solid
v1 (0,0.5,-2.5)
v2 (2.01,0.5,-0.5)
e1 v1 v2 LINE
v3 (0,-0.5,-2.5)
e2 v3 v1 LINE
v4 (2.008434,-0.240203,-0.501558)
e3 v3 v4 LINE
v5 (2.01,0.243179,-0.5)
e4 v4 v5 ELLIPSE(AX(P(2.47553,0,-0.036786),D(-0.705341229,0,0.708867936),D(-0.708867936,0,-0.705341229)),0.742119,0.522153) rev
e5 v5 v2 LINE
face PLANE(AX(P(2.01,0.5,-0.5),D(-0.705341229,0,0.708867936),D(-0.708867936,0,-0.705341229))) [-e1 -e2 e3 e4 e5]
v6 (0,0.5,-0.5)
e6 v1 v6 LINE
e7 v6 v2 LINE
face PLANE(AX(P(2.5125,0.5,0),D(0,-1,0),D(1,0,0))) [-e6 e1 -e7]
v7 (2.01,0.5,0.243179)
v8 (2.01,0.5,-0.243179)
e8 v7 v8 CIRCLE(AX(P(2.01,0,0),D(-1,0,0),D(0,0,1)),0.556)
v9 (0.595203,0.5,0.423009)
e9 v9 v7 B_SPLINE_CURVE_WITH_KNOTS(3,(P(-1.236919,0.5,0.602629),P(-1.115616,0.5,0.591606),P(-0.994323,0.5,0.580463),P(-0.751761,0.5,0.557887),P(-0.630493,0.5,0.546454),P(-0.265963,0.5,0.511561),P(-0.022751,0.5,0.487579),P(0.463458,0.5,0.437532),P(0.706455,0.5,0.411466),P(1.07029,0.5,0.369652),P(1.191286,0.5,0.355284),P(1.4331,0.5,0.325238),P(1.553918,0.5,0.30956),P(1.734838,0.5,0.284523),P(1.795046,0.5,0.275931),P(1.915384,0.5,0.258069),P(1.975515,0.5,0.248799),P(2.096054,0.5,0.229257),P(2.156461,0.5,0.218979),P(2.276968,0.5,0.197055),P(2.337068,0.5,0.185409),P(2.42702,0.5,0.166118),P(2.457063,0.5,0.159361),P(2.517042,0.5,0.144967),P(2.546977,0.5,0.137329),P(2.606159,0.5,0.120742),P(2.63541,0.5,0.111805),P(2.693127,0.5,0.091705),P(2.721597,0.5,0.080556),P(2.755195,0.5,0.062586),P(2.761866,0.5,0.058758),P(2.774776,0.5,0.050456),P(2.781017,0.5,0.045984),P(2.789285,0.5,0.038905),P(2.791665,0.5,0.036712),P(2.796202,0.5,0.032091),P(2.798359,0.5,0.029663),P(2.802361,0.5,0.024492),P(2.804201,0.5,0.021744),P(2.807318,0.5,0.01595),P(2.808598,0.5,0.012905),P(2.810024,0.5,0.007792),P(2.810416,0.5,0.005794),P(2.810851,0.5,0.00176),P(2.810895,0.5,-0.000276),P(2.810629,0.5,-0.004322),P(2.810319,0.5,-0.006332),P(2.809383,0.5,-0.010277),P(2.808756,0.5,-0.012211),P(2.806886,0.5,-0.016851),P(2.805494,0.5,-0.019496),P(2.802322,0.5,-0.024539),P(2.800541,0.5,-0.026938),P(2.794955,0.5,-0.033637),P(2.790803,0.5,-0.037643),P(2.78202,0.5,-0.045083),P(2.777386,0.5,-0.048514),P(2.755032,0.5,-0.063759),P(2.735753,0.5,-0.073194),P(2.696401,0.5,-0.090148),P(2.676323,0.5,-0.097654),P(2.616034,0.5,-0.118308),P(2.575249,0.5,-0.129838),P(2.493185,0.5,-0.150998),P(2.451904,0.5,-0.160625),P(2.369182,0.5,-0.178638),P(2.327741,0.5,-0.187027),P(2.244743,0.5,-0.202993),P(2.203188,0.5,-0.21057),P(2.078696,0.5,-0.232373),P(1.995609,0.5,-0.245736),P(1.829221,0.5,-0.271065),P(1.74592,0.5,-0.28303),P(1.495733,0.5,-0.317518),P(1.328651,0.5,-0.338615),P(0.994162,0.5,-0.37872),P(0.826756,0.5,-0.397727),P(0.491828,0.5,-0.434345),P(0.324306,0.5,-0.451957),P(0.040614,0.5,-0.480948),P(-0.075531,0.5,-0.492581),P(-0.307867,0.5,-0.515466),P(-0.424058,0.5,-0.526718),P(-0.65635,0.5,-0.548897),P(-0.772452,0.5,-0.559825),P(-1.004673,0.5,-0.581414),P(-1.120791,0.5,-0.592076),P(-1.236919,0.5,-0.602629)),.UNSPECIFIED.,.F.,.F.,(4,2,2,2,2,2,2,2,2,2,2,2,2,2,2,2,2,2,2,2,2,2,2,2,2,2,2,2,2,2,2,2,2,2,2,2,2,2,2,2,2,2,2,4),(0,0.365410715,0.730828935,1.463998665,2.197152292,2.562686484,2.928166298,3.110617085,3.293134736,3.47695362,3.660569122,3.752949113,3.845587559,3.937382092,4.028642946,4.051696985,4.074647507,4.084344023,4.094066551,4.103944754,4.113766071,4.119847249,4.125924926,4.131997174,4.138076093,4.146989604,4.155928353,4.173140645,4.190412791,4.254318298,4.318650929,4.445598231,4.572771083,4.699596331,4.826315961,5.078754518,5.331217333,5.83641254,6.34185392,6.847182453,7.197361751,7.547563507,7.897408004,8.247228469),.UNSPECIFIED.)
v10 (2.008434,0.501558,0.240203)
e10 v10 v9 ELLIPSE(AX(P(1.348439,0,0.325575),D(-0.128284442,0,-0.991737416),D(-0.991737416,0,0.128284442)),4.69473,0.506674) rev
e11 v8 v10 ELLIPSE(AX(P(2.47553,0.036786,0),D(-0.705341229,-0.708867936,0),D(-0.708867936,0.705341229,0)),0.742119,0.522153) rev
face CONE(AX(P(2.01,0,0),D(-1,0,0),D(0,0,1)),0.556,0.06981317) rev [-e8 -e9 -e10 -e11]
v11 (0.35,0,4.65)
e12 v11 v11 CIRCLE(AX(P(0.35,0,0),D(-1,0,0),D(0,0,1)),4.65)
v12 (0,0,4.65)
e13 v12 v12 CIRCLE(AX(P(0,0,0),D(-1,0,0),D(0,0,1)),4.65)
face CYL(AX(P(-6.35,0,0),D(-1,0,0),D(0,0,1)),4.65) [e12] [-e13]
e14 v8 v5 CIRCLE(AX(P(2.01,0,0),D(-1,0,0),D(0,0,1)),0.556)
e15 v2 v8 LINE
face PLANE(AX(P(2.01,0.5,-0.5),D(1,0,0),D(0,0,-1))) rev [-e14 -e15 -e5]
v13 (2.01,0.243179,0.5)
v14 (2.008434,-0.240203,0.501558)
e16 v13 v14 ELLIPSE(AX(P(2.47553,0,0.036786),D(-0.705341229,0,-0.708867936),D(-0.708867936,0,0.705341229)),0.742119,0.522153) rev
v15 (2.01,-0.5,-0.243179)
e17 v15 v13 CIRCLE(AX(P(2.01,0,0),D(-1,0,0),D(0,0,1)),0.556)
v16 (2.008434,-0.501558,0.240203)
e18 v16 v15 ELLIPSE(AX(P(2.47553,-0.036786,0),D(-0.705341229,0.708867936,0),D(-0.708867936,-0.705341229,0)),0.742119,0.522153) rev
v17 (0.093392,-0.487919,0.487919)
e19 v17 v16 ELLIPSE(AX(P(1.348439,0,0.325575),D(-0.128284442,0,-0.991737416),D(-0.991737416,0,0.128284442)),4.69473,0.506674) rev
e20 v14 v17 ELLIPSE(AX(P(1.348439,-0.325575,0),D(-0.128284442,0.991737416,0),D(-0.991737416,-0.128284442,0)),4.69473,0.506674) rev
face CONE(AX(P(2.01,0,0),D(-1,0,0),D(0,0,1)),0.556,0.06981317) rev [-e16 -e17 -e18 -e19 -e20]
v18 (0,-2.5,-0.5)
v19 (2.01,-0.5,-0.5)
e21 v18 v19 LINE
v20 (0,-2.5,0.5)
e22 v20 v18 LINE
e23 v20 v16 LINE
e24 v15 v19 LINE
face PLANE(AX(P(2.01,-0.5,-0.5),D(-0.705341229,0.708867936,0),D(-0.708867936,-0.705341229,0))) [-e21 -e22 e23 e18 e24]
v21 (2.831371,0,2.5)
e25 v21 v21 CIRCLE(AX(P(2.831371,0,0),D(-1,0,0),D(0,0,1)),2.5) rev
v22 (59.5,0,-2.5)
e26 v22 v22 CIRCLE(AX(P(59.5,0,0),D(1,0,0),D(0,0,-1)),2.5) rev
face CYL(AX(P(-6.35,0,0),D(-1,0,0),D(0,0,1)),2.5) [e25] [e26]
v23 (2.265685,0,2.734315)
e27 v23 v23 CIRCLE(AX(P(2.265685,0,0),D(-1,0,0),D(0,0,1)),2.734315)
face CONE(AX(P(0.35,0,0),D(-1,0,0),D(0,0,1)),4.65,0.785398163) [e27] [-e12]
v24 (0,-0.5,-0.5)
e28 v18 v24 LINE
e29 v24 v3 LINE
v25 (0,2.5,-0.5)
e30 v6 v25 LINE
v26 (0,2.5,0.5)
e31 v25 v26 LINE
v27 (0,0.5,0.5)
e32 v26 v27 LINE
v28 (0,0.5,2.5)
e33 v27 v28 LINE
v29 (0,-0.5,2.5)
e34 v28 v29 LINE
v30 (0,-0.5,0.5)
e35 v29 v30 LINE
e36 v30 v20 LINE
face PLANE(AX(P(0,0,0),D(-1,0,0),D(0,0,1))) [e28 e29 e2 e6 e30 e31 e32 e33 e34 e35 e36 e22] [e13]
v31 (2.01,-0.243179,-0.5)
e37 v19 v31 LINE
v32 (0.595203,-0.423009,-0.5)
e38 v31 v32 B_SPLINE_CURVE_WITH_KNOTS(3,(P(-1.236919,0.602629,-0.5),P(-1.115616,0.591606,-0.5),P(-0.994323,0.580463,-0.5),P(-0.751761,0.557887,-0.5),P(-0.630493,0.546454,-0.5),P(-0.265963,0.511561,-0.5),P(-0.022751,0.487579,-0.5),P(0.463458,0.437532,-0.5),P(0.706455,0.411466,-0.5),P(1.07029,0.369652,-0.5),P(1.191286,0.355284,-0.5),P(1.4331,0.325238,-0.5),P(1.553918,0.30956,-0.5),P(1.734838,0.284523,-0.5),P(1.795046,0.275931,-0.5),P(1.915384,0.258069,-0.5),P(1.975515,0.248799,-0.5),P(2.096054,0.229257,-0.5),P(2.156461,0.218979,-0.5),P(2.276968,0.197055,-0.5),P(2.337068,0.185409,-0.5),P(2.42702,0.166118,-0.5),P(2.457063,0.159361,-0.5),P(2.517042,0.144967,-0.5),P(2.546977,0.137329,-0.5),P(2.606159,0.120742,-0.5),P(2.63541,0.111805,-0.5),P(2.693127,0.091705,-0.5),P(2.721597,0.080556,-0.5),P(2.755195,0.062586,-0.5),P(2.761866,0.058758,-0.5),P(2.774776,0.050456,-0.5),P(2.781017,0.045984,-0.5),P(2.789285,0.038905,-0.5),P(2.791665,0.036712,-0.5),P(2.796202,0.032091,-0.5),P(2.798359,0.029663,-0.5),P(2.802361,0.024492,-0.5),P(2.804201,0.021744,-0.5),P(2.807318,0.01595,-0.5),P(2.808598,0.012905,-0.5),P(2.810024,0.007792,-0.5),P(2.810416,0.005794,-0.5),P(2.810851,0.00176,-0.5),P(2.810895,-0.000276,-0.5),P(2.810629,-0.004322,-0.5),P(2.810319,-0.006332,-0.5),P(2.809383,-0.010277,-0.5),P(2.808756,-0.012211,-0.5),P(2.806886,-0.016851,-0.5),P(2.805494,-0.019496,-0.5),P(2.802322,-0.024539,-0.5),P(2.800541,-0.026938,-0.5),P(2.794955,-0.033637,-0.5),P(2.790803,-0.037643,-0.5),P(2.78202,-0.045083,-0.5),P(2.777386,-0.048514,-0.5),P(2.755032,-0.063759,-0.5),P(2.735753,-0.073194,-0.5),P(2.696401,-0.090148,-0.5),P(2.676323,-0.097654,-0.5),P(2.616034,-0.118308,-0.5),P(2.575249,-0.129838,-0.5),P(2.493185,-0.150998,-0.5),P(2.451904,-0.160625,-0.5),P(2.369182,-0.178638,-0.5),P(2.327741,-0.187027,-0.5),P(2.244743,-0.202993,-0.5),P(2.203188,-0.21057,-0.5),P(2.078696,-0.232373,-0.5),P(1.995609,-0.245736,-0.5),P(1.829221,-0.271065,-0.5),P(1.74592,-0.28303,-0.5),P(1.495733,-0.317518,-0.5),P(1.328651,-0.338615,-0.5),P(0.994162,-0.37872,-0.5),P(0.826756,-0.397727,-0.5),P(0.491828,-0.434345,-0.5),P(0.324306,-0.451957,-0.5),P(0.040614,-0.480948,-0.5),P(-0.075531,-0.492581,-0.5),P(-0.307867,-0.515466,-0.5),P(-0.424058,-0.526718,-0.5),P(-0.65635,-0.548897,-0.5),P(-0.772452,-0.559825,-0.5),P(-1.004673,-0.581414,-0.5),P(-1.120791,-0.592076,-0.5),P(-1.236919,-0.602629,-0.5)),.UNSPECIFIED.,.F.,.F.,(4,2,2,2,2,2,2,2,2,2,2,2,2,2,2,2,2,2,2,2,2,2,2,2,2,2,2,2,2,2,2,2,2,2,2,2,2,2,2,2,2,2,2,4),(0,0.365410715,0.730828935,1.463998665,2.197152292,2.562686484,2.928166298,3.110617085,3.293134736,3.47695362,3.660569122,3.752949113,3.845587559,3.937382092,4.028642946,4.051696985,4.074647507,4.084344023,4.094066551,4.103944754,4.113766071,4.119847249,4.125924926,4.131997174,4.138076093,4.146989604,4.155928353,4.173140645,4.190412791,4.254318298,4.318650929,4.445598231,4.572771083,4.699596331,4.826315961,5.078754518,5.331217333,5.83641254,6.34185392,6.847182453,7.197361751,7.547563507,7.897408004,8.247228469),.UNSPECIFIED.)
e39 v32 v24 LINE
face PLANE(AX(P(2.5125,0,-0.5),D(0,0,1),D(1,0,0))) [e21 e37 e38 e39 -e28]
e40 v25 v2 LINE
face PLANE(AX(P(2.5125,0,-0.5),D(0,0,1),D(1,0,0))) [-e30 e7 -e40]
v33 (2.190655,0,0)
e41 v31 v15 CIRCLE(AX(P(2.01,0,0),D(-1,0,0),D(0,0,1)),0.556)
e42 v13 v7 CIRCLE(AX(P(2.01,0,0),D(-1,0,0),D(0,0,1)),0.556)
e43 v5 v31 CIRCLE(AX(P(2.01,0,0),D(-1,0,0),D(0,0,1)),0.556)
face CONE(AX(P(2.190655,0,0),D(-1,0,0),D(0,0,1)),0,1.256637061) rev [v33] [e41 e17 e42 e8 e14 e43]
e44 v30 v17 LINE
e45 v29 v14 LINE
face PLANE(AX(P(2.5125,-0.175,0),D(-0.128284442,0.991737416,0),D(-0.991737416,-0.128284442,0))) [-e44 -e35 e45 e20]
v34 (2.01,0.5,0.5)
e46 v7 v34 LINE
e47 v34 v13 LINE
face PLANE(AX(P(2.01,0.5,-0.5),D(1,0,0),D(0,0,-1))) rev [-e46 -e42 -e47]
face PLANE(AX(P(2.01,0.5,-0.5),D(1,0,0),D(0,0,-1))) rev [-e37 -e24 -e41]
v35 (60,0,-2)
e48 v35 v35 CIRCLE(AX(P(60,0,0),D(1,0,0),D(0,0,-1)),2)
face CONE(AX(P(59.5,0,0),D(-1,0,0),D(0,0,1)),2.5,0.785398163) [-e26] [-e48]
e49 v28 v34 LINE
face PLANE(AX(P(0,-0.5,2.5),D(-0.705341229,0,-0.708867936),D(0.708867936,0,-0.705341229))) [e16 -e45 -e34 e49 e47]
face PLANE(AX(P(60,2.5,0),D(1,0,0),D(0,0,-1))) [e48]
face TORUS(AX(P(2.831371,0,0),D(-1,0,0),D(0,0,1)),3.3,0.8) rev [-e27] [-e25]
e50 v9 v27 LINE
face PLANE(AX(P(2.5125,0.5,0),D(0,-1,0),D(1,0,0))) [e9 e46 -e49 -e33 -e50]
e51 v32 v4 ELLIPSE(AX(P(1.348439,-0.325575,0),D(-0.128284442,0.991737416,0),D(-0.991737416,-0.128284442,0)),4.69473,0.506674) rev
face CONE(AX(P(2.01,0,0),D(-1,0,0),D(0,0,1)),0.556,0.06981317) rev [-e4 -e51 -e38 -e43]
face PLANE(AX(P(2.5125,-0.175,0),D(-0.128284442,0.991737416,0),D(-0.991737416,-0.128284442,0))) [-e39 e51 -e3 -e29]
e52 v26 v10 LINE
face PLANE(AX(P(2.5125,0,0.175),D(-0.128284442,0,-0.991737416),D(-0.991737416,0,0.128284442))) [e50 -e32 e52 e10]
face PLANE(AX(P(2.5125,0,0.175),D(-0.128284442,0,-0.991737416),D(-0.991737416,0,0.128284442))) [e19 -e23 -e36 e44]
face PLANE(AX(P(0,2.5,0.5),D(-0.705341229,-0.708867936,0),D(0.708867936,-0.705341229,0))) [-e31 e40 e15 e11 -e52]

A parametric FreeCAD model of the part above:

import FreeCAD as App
import Part
import Sketcher

V = App.Vector
Q = App.Units.Quantity


def edges_at(feature, points):
    """Names of the edges that pass closest to the given points."""
    edges = feature.Shape.Edges
    near = lambda p: min(range(len(edges)), key=lambda i: edges[i].distToShape(Part.Vertex(*p))[0])
    return sorted({f"Edge{near(p) + 1}" for p in points})

doc = App.newDocument("Part")
body = doc.addObject("PartDesign::Body", "Body")

# Sketch on XY plane
sketch1 = doc.addObject("Sketcher::SketchObject", "Sketch")
body.addObject(sketch1)
sketch1.AttachmentSupport = (doc.XY_Plane, [""])
sketch1.MapMode = "FlatFace"
sketch1.addGeometry(Part.LineSegment(V(0, 4.65, 0), V(0, 0, 0)), False)
sketch1.addGeometry(Part.LineSegment(V(0, 0, 0), V(60, 0, 0)), False)
sketch1.addGeometry(Part.LineSegment(V(60, 0, 0), V(60, 2.5, 0)), False)
sketch1.addGeometry(Part.LineSegment(V(60, 2.5, 0), V(2.5, 2.5, 0)), False)
sketch1.addGeometry(Part.LineSegment(V(2.5, 2.5, 0), V(0.35, 4.65, 0)), False)
sketch1.addGeometry(Part.LineSegment(V(0.35, 4.65, 0), V(0, 4.65, 0)), False)
sketch1.addConstraint(Sketcher.Constraint("Coincident", 0, 2, 1, 1))
sketch1.addConstraint(Sketcher.Constraint("Coincident", 1, 2, 2, 1))
sketch1.addConstraint(Sketcher.Constraint("Coincident", 2, 2, 3, 1))
sketch1.addConstraint(Sketcher.Constraint("Coincident", 3, 2, 4, 1))
sketch1.addConstraint(Sketcher.Constraint("Coincident", 4, 2, 5, 1))
sketch1.addConstraint(Sketcher.Constraint("Coincident", 5, 2, 0, 1))
sketch1.addConstraint(Sketcher.Constraint("Vertical", 0))
sketch1.addConstraint(Sketcher.Constraint("Horizontal", 1))
sketch1.addConstraint(Sketcher.Constraint("Vertical", 2))
sketch1.addConstraint(Sketcher.Constraint("Horizontal", 3))
sketch1.addConstraint(Sketcher.Constraint("Horizontal", 5))
sketch1.addConstraint(Sketcher.Constraint("Coincident", 0, 2, -1, 1))
sketch1.addConstraint(Sketcher.Constraint("DistanceX", 1, 1, 1, 2, 60.0))
sketch1.addConstraint(Sketcher.Constraint("Angle", 4, Q("135 deg")))
sketch1.addConstraint(Sketcher.Constraint("DistanceX", 3, 2, 3, 1, 57.5))
sketch1.addConstraint(Sketcher.Constraint("DistanceY", 2, 1, 2, 2, 2.5))
sketch1.addConstraint(Sketcher.Constraint("DistanceX", 5, 2, 5, 1, 0.35))
revolution = doc.addObject("PartDesign::Revolution", "Revolution")
body.addObject(revolution)
revolution.Profile = sketch1
revolution.ReferenceAxis = (sketch1, ["H_Axis"])
revolution.Angle = 360
doc.recompute()

fillet = doc.addObject("PartDesign::Fillet", "Fillet")
body.addObject(fillet)
fillet.Base = (revolution, edges_at(revolution, [(2.5, 0, -2.5)]))
fillet.Radius = 0.8

# Sketch on YZ plane
sketch2 = doc.addObject("Sketcher::SketchObject", "Sketch001")
body.addObject(sketch2)
sketch2.AttachmentSupport = (doc.YZ_Plane, [""])
sketch2.MapMode = "FlatFace"
sketch2.addGeometry(Part.LineSegment(V(2.5, -0.5, 0), V(-2.5, -0.5, 0)), False)
sketch2.addGeometry(Part.LineSegment(V(-2.5, -0.5, 0), V(-2.5, 0.5, 0)), False)
sketch2.addGeometry(Part.LineSegment(V(-2.5, 0.5, 0), V(2.5, 0.5, 0)), False)
sketch2.addGeometry(Part.LineSegment(V(2.5, 0.5, 0), V(2.5, -0.5, 0)), False)
sketch2.addConstraint(Sketcher.Constraint("Coincident", 0, 2, 1, 1))
sketch2.addConstraint(Sketcher.Constraint("Coincident", 1, 2, 2, 1))
sketch2.addConstraint(Sketcher.Constraint("Coincident", 2, 2, 3, 1))
sketch2.addConstraint(Sketcher.Constraint("Coincident", 3, 2, 0, 1))
sketch2.addConstraint(Sketcher.Constraint("Horizontal", 0))
sketch2.addConstraint(Sketcher.Constraint("Vertical", 1))
sketch2.addConstraint(Sketcher.Constraint("Horizontal", 2))
sketch2.addConstraint(Sketcher.Constraint("Vertical", 3))
sketch2.addConstraint(Sketcher.Constraint("Symmetric", 0, 2, 2, 2, -1, 1))
sketch2.addConstraint(Sketcher.Constraint("DistanceX", 0, 2, 0, 1, 5.0))
sketch2.addConstraint(Sketcher.Constraint("DistanceY", 1, 1, 1, 2, 1.0))

# Sketch on YZ plane
sketch3 = doc.addObject("Sketcher::SketchObject", "Sketch002")
body.addObject(sketch3)
sketch3.AttachmentSupport = (doc.YZ_Plane, [""])
sketch3.MapMode = "FlatFace"
sketch3.AttachmentOffset = App.Placement(V(0, 0, 2.01), App.Rotation())
sketch3.addGeometry(Part.LineSegment(V(0.5, -0.5, 0), V(-0.5, -0.5, 0)), False)
sketch3.addGeometry(Part.LineSegment(V(-0.5, -0.5, 0), V(-0.5, 0.2, 0)), False)
sketch3.addGeometry(Part.LineSegment(V(-0.5, 0.2, 0), V(0.5, 0.2, 0)), False)
sketch3.addGeometry(Part.LineSegment(V(0.5, 0.2, 0), V(0.5, -0.5, 0)), False)
sketch3.addConstraint(Sketcher.Constraint("Coincident", 0, 2, 1, 1))
sketch3.addConstraint(Sketcher.Constraint("Coincident", 1, 2, 2, 1))
sketch3.addConstraint(Sketcher.Constraint("Coincident", 2, 2, 3, 1))
sketch3.addConstraint(Sketcher.Constraint("Coincident", 3, 2, 0, 1))
sketch3.addConstraint(Sketcher.Constraint("Horizontal", 0))
sketch3.addConstraint(Sketcher.Constraint("Vertical", 1))
sketch3.addConstraint(Sketcher.Constraint("Horizontal", 2))
sketch3.addConstraint(Sketcher.Constraint("Vertical", 3))
sketch3.addConstraint(Sketcher.Constraint("DistanceX", 0, 2, 0, 1, 1.0))
sketch3.addConstraint(Sketcher.Constraint("DistanceY", 1, 1, 1, 2, 0.74))
sketch3.addConstraint(Sketcher.Constraint("DistanceX", 0, 2, -1, 1, 0.5))
sketch3.addConstraint(Sketcher.Constraint("DistanceY", 0, 2, -1, 1, 0.5))

subtractiveloft = doc.addObject("PartDesign::SubtractiveLoft", "SubtractiveLoft")
body.addObject(subtractiveloft)
subtractiveloft.Profile = sketch2
subtractiveloft.Sections = [sketch3]
doc.recompute()

polarpattern = doc.addObject("PartDesign::PolarPattern", "PolarPattern")
body.addObject(polarpattern)
polarpattern.Originals = [subtractiveloft]
polarpattern.Axis = (doc.X_Axis, [""])
polarpattern.Angle = 90
polarpattern.Occurrences = 2
body.Tip = polarpattern

# Sketch on XY plane
sketch4 = doc.addObject("Sketcher::SketchObject", "Sketch003")
body.addObject(sketch4)
sketch4.AttachmentSupport = (doc.XY_Plane, [""])
sketch4.MapMode = "FlatFace"
sketch4.addGeometry(Part.LineSegment(V(0, 0.7, 0), V(0, 0, 0)), False)
sketch4.addGeometry(Part.LineSegment(V(0, 0, 0), V(2.2, 0, 0)), False)
sketch4.addGeometry(Part.LineSegment(V(2.2, 0, 0), V(2, 0.6, 0)), False)
sketch4.addGeometry(Part.LineSegment(V(2, 0.6, 0), V(0, 0.7, 0)), False)
sketch4.addConstraint(Sketcher.Constraint("Coincident", 0, 2, 1, 1))
sketch4.addConstraint(Sketcher.Constraint("Coincident", 1, 2, 2, 1))
sketch4.addConstraint(Sketcher.Constraint("Coincident", 2, 2, 3, 1))
sketch4.addConstraint(Sketcher.Constraint("Coincident", 3, 2, 0, 1))
sketch4.addConstraint(Sketcher.Constraint("Vertical", 0))
sketch4.addConstraint(Sketcher.Constraint("Horizontal", 1))
sketch4.addConstraint(Sketcher.Constraint("Coincident", 0, 2, -1, 1))
sketch4.addConstraint(Sketcher.Constraint("Angle", 2, Q("108 deg")))
sketch4.addConstraint(Sketcher.Constraint("Angle", 3, Q("176 deg")))
sketch4.addConstraint(Sketcher.Constraint("DistanceX", -1, 1, 2, 2, 2.01))
sketch4.addConstraint(Sketcher.Constraint("DistanceY", -1, 1, 2, 2, 0.556))
groove = doc.addObject("PartDesign::Groove", "Groove")
body.addObject(groove)
groove.Profile = sketch4
groove.ReferenceAxis = (sketch4, ["H_Axis"])
groove.Angle = 360
doc.recompute()

chamfer = doc.addObject("PartDesign::Chamfer", "Chamfer")
body.addObject(chamfer)
chamfer.Base = (groove, edges_at(groove, [(60, 0, -2.5)]))
chamfer.Size = 0.5

doc.recompute()
